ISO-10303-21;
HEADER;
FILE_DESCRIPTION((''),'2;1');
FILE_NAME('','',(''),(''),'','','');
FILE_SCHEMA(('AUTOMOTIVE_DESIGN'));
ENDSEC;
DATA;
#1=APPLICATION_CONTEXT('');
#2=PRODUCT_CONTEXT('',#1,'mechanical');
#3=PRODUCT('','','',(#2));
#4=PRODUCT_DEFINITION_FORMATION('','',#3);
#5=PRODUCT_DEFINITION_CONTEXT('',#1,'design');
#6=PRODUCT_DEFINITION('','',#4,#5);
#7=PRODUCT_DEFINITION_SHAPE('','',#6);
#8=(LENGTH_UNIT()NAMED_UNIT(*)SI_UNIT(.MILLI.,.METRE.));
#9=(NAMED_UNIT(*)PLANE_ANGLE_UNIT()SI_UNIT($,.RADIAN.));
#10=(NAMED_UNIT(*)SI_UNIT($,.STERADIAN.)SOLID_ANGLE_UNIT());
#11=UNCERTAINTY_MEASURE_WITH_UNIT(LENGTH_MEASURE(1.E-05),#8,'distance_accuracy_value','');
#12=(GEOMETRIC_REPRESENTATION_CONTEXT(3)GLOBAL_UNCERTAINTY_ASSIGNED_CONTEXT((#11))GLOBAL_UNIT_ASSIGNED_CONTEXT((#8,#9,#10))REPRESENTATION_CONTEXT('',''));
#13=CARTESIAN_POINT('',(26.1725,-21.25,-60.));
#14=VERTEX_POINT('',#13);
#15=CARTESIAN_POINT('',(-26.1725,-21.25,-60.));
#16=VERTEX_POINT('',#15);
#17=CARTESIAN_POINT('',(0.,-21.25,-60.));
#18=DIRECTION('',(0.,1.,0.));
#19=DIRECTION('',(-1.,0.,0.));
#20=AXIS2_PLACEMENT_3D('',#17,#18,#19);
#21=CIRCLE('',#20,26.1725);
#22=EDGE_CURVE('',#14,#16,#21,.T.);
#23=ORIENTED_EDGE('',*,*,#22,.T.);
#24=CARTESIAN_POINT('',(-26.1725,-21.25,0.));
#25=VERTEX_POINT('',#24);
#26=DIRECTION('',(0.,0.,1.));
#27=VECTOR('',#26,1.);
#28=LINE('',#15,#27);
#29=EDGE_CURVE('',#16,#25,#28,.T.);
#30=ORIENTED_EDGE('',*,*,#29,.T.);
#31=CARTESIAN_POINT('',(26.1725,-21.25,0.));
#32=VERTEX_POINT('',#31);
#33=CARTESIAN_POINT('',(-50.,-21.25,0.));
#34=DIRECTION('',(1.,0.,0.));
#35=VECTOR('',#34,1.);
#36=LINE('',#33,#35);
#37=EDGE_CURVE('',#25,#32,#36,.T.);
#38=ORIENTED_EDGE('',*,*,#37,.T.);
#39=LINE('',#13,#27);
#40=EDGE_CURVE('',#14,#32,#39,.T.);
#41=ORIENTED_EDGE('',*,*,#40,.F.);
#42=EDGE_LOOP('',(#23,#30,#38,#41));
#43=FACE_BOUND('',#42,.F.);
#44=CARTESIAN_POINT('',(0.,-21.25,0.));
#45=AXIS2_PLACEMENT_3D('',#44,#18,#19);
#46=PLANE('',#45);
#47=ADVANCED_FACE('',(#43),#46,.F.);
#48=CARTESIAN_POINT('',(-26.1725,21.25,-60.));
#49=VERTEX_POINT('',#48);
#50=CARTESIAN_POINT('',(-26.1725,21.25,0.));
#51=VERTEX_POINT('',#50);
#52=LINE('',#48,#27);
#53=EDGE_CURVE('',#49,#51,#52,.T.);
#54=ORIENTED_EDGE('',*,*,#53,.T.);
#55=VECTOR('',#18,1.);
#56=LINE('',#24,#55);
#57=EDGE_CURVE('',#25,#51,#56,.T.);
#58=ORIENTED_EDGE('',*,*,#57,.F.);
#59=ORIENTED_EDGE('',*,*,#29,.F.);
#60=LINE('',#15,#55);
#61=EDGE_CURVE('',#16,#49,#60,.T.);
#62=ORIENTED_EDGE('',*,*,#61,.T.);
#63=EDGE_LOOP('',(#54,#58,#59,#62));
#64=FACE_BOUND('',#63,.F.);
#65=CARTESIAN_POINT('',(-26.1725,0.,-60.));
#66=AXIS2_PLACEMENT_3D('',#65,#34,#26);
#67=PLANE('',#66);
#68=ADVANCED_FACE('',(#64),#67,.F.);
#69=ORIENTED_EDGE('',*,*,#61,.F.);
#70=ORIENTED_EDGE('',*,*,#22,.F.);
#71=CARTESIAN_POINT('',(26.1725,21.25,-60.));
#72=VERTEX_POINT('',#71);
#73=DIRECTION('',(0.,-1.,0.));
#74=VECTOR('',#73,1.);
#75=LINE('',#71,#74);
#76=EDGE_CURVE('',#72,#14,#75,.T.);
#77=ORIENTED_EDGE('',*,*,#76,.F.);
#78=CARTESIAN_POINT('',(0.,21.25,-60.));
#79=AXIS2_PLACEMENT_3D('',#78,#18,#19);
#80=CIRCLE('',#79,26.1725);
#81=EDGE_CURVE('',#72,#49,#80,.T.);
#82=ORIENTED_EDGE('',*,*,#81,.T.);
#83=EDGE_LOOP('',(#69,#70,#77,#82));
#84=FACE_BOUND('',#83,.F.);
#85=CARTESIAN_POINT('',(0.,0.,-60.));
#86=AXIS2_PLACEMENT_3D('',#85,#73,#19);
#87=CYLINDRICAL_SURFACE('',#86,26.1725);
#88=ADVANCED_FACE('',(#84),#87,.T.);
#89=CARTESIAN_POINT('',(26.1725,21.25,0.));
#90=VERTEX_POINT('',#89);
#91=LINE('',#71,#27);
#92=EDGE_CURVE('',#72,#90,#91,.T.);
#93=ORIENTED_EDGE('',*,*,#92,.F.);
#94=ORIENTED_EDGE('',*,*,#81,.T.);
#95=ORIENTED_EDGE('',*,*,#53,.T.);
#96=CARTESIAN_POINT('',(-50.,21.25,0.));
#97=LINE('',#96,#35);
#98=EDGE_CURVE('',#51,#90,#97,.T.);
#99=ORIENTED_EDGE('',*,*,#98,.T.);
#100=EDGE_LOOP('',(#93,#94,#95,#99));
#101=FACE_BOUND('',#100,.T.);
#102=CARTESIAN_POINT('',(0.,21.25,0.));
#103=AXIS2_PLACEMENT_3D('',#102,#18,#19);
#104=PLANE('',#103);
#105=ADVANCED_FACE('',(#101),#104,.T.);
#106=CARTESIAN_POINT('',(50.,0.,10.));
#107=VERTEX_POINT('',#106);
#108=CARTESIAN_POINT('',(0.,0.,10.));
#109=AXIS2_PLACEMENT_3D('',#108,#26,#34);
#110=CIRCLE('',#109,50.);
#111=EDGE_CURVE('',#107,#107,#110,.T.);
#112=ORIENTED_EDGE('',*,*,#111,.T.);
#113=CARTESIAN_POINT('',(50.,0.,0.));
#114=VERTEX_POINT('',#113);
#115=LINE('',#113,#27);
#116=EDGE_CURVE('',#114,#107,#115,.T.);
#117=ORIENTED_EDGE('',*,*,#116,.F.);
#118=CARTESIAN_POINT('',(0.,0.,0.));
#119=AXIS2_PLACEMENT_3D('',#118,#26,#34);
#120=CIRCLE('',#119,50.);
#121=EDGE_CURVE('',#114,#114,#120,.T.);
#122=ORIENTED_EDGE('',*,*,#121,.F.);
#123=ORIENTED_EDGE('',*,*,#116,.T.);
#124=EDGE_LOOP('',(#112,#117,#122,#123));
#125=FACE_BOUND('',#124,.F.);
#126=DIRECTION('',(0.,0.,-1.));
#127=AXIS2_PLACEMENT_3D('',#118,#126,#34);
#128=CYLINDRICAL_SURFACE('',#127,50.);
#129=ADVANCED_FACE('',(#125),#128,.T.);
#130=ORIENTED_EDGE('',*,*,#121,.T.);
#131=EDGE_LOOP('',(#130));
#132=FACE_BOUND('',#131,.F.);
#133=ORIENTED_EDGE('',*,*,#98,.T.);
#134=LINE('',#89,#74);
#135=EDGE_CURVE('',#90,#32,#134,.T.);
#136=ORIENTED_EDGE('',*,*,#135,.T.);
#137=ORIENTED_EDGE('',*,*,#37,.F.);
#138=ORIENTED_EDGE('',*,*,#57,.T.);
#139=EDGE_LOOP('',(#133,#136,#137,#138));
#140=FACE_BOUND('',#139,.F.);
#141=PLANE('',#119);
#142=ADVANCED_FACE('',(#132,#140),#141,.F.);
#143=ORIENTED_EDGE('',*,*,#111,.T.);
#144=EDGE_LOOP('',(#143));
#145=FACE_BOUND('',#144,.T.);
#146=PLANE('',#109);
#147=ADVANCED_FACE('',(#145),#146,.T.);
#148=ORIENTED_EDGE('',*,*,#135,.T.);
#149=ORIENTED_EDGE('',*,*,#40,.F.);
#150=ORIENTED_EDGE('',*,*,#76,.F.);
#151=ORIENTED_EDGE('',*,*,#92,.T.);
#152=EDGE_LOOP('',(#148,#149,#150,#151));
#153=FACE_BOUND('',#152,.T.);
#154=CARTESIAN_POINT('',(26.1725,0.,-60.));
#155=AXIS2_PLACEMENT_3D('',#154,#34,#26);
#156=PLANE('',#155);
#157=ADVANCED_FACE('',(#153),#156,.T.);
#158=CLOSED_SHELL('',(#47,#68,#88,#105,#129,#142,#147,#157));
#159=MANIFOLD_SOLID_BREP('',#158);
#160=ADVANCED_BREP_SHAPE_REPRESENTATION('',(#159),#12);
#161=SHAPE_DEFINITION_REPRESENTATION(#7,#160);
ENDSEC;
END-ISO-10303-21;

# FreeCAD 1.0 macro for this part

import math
import FreeCAD as App
import Part
import Sketcher
Q = App.Units.Quantity

doc = App.newDocument("Part")
body = doc.addObject("PartDesign::Body", "Body")

# Sketch on XY plane
sketch1 = body.newObject("Sketcher::SketchObject", "Sketch")
sketch1.AttachmentSupport = (doc.getObject("XY_Plane"), [""])
sketch1.MapMode = "FlatFace"
sketch1.addGeometry(Part.Circle(App.Vector(0, 0, 0), App.Vector(0, 0, 1), 50), False)
sketch1.addConstraint([
    Sketcher.Constraint("Coincident", 0, 3, -1, 1),
    Sketcher.Constraint("Diameter", 0, Q("3.937 in")),
])
pad1 = body.newObject("PartDesign::Pad", "Pad")
pad1.Profile = sketch1
pad1.Length = Q("0.3937008 in")

# Sketch on XZ plane
sketch2 = body.newObject("Sketcher::SketchObject", "Sketch001")
sketch2.AttachmentSupport = (doc.getObject("XZ_Plane"), [""])
sketch2.MapMode = "FlatFace"
sketch2.addGeometry([
    Part.ArcOfCircle(Part.Circle(App.Vector(0, -60, 0), App.Vector(0, 0, 1), 26), math.radians(180), math.radians(360)),
    Part.LineSegment(App.Vector(-26, -60, 0), App.Vector(-26, 0, 0)),
    Part.LineSegment(App.Vector(-26, 0, 0), App.Vector(26, 0, 0)),
    Part.LineSegment(App.Vector(26, 0, 0), App.Vector(26, -60, 0)),
], False)
sketch2.addConstraint([
    Sketcher.Constraint("Tangent", 0, 1, 1, 1),
    Sketcher.Constraint("Coincident", 1, 2, 2, 1),
    Sketcher.Constraint("Coincident", 2, 2, 3, 1),
    Sketcher.Constraint("Tangent", 3, 2, 0, 2),
    Sketcher.Constraint("Vertical", 1),
    Sketcher.Constraint("Horizontal", 2),
    Sketcher.Constraint("Vertical", 3),
    Sketcher.Constraint("Symmetric", 1, 2, 2, 2, -1, 1),
    Sketcher.Constraint("Radius", 0, 26.1725),
    Sketcher.Constraint("DistanceY", 1, 1, 1, 2, Q("2.3622 in")),
])
pad2 = body.newObject("PartDesign::Pad", "Pad001")
pad2.Profile = sketch2
pad2.Length = 42.5
pad2.Midplane = True

doc.recompute()
